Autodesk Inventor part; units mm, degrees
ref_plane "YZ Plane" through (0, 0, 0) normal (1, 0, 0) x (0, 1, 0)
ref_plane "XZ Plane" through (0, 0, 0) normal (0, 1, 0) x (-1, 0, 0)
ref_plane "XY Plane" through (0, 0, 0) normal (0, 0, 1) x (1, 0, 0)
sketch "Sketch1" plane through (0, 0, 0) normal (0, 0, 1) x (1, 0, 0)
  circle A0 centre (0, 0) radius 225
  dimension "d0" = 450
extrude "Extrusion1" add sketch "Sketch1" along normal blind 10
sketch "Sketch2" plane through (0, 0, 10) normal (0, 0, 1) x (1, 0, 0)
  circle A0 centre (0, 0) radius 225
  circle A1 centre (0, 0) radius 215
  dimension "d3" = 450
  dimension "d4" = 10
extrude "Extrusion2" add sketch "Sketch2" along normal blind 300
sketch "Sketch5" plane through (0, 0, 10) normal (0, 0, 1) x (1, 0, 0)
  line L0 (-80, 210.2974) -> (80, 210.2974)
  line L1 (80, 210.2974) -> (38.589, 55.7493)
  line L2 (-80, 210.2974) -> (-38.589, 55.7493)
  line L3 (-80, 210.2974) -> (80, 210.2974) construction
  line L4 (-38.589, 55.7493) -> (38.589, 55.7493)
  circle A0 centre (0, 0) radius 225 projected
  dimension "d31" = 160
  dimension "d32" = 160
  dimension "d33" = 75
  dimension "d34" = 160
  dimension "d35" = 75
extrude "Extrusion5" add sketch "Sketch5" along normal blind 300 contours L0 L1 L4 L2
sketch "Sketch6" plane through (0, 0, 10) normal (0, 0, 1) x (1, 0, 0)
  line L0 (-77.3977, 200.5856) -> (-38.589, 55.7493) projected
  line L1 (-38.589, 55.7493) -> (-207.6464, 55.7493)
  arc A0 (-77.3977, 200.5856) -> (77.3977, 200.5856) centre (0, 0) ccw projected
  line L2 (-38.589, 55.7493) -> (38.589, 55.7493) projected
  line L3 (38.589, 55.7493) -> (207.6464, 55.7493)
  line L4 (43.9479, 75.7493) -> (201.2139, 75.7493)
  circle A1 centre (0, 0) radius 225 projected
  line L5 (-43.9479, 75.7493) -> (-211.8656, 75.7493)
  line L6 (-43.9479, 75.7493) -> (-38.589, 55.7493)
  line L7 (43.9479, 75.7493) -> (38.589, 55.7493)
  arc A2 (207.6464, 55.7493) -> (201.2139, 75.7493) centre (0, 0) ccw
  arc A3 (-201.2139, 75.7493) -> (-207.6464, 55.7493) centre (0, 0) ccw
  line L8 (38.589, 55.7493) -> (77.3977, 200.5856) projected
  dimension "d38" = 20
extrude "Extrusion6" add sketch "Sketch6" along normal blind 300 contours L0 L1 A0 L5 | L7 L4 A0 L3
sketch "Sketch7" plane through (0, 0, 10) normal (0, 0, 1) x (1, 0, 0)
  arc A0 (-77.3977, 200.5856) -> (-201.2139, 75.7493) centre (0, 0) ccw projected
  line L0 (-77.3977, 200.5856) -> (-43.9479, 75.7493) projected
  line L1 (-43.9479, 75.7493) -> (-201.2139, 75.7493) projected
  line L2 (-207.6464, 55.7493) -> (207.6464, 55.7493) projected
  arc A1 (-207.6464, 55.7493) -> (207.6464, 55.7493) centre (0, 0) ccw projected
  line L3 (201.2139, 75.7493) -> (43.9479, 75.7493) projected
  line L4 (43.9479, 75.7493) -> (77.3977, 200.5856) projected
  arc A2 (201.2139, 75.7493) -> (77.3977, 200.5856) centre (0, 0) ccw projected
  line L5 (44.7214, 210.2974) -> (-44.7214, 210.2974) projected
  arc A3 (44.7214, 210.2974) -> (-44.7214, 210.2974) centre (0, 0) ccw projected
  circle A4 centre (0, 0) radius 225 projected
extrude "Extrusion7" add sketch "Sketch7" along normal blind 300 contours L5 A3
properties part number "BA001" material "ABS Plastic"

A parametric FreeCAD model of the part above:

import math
import FreeCAD as App
import Part
import Sketcher
Q = App.Units.Quantity


def add_polygon(sketch, points):
    """Adds a closed chain of lines whose ends are joined by coincident constraints."""
    first, n = sketch.GeometryCount, len(points)
    for a, b in zip(points, points[1:] + points[:1]):
        sketch.addGeometry(Part.LineSegment(App.Vector(*a, 0), App.Vector(*b, 0)), False)
    for i in range(n):
        sketch.addConstraint(Sketcher.Constraint("Coincident", first + i, 2, first + (i + 1) % n, 1))

doc = App.newDocument("Part")
body = doc.addObject("PartDesign::Body", "Body")

sketch1 = body.newObject("Sketcher::SketchObject", "Sketch")
sketch1.AttachmentSupport = (doc.getObject("XY_Plane"), [""])
sketch1.MapMode = "FlatFace"
sketch1.addGeometry(Part.Circle(App.Vector(0, 0, 0), App.Vector(0, 0, 1), 225), False)
sketch1.addConstraint([
    Sketcher.Constraint("Coincident", 0, 3, -1, 1),
    Sketcher.Constraint("Diameter", 0, 450.0),
])
pad1 = body.newObject("PartDesign::Pad", "Pad")
pad1.Profile = sketch1
pad1.Length = 10

sketch2 = body.newObject("Sketcher::SketchObject", "Sketch001")
sketch2.AttachmentSupport = (doc.getObject("XY_Plane"), [""])
sketch2.MapMode = "FlatFace"
sketch2.AttachmentOffset = App.Placement(App.Vector(0, 0, 10), App.Rotation())
sketch2.addGeometry([
    Part.Circle(App.Vector(0, 0, 0), App.Vector(0, 0, 1), 225),
    Part.Circle(App.Vector(0, 0, 0), App.Vector(0, 0, 1), 215),
], False)
sketch2.addConstraint([
    Sketcher.Constraint("Coincident", 0, 3, -1, 1),
    Sketcher.Constraint("Coincident", 1, 3, -1, 1),
    Sketcher.Constraint("Diameter", 0, 450.0),
    Sketcher.Constraint("Diameter", 1, 430.0),
])
pad2 = body.newObject("PartDesign::Pad", "Pad001")
pad2.Profile = sketch2
pad2.Length = 300

sketch3 = body.newObject("Sketcher::SketchObject", "Sketch002")
sketch3.AttachmentSupport = (doc.getObject("XY_Plane"), [""])
sketch3.MapMode = "FlatFace"
sketch3.AttachmentOffset = App.Placement(App.Vector(0, 0, 10), App.Rotation())
add_polygon(sketch3, [(80, 210), (-80, 210), (-39, 56), (39, 56)])
sketch3.addConstraint([
    Sketcher.Constraint("Horizontal", 0),
    Sketcher.Constraint("Horizontal", 2),
    Sketcher.Constraint("Equal", 1, 3),
    Sketcher.Constraint("DistanceX", 0, 2, 0, 1, 160.0),
    Sketcher.Constraint("Angle", 1, Q("-75 deg")),
    Sketcher.Constraint("Distance", 1, 160.0),
    Sketcher.Constraint("DistanceX", 0, 2, -1, 1, 80.0),
    Sketcher.Constraint("DistanceY", -1, 1, 0, 2, 210.2974),
])
pad3 = body.newObject("PartDesign::Pad", "Pad002")
pad3.Profile = sketch3
pad3.Length = 300

sketch4 = body.newObject("Sketcher::SketchObject", "Sketch003")
sketch4.AttachmentSupport = (doc.getObject("XY_Plane"), [""])
sketch4.MapMode = "FlatFace"
sketch4.AttachmentOffset = App.Placement(App.Vector(0, 0, 10), App.Rotation())
sketch4.addGeometry([
    Part.LineSegment(App.Vector(-39, 56, 0), App.Vector(-44, 76, 0)),
    Part.LineSegment(App.Vector(-44, 76, 0), App.Vector(-201, 76, 0)),
    Part.ArcOfCircle(Part.Circle(App.Vector(0, 0, 0), App.Vector(0, 0, 1), 215), math.radians(159.37), math.radians(164.97)),
    Part.LineSegment(App.Vector(-208, 56, 0), App.Vector(-39, 56, 0)),
    Part.LineSegment(App.Vector(44, 76, 0), App.Vector(39, 56, 0)),
    Part.LineSegment(App.Vector(39, 56, 0), App.Vector(208, 56, 0)),
    Part.ArcOfCircle(Part.Circle(App.Vector(0, 0, 0), App.Vector(0, 0, 1), 215), math.radians(15.03), math.radians(20.63)),
    Part.LineSegment(App.Vector(201, 76, 0), App.Vector(44, 76, 0)),
], False)
sketch4.addConstraint([
    Sketcher.Constraint("Coincident", 0, 2, 1, 1),
    Sketcher.Constraint("Coincident", 1, 2, 2, 1),
    Sketcher.Constraint("Coincident", 2, 2, 3, 1),
    Sketcher.Constraint("Coincident", 3, 2, 0, 1),
    Sketcher.Constraint("Coincident", 4, 2, 5, 1),
    Sketcher.Constraint("Coincident", 5, 2, 6, 1),
    Sketcher.Constraint("Coincident", 6, 2, 7, 1),
    Sketcher.Constraint("Coincident", 7, 2, 4, 1),
    Sketcher.Constraint("Horizontal", 1),
    Sketcher.Constraint("Horizontal", 3),
    Sketcher.Constraint("Horizontal", 5),
    Sketcher.Constraint("Horizontal", 7),
    Sketcher.Constraint("Coincident", 2, 3, -1, 1),
    Sketcher.Constraint("Coincident", 6, 3, -1, 1),
    Sketcher.Constraint("Equal", 2, 6),
    Sketcher.Constraint("Symmetric", 3, 2, 4, 2, -2),
    Sketcher.Constraint("Symmetric", 0, 2, 7, 2, -2),
    Sketcher.Constraint("Radius", 2, 215.0),
    Sketcher.Constraint("DistanceY", 2, 2, 1, 2, 20.0),
    Sketcher.Constraint("Angle", 0, Q("105 deg")),
    Sketcher.Constraint("DistanceX", 1, 2, 1, 1, 157.266),
    Sketcher.Constraint("DistanceX", 3, 1, 3, 2, 169.0574),
])
pad4 = body.newObject("PartDesign::Pad", "Pad003")
pad4.Profile = sketch4
pad4.Length = 300

sketch5 = body.newObject("Sketcher::SketchObject", "Sketch004")
sketch5.AttachmentSupport = (doc.getObject("XY_Plane"), [""])
sketch5.MapMode = "FlatFace"
sketch5.AttachmentOffset = App.Placement(App.Vector(0, 0, 10), App.Rotation())
sketch5.addGeometry([
    Part.LineSegment(App.Vector(-45, 210, 0), App.Vector(45, 210, 0)),
    Part.ArcOfCircle(Part.Circle(App.Vector(0, 0, 0), App.Vector(0, 0, 1), 215), math.radians(78), math.radians(102)),
], False)
sketch5.addConstraint([
    Sketcher.Constraint("Coincident", 0, 1, 1, 2),
    Sketcher.Constraint("Coincident", 1, 1, 0, 2),
    Sketcher.Constraint("Horizontal", 0),
    Sketcher.Constraint("Coincident", 1, 3, -1, 1),
    Sketcher.Constraint("Radius", 1, 215.0),
    Sketcher.Constraint("DistanceX", 0, 1, 0, 2, 89.4428),
])
pad5 = body.newObject("PartDesign::Pad", "Pad004")
pad5.Profile = sketch5
pad5.Length = 300

doc.recompute()
